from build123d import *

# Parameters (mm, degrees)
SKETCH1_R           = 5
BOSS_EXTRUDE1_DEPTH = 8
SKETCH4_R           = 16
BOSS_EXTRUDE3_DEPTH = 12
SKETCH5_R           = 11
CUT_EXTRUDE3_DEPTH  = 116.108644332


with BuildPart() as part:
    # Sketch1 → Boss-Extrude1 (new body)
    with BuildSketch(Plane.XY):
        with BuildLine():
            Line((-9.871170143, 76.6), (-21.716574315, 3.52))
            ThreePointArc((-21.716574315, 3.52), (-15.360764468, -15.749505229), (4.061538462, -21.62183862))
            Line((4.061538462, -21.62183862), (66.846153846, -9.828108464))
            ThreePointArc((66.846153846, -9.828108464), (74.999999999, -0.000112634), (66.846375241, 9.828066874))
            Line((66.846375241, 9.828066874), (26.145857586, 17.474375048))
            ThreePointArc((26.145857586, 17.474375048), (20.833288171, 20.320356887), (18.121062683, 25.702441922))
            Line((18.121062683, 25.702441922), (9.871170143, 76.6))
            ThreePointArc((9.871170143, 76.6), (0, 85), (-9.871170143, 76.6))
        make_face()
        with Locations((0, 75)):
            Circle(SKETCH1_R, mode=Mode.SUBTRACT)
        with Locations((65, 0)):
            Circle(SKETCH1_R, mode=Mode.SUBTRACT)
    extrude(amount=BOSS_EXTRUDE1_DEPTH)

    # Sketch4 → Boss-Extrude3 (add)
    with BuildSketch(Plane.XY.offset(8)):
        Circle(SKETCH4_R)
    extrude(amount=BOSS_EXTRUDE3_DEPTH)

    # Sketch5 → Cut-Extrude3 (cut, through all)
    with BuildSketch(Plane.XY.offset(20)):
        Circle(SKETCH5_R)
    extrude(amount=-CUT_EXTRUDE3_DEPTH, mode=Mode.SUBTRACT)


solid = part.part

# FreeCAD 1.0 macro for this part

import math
import FreeCAD as App
import Part
import Sketcher
Q = App.Units.Quantity

doc = App.newDocument("Part")
body = doc.addObject("PartDesign::Body", "Body")

# Sketch on XY plane
sketch1 = body.newObject("Sketcher::SketchObject", "Sketch")
sketch1.AttachmentSupport = (doc.getObject("XY_Plane"), [""])
sketch1.MapMode = "FlatFace"
sketch1.addGeometry([
    Part.LineSegment(App.Vector(-9.87117, 76.6, 0), App.Vector(-21.716574, 3.52, 0)),  # 0
    Part.ArcOfCircle(Part.Circle(App.Vector(0, 0, 0), App.Vector(0, 0, 1), 22), math.radians(170.793104), math.radians(280.638709)),  # 1
    Part.LineSegment(App.Vector(4.061538, -21.621839, 0), App.Vector(66.846154, -9.828108, 0)),  # 2
    Part.ArcOfCircle(Part.Circle(App.Vector(65, 0, 0), App.Vector(0, 0, 1), 10), math.radians(-79.361291), math.radians(79.36)),  # 3
    Part.LineSegment(App.Vector(66.846375, 9.828067, 0), App.Vector(26.145858, 17.474375, 0)),  # 4
    Part.ArcOfCircle(Part.Circle(App.Vector(27.992233, 27.302442, 0), App.Vector(0, 0, 1), 10), math.radians(-170.793104), math.radians(-100.64)),  # 5
    Part.LineSegment(App.Vector(18.121063, 25.702442, 0), App.Vector(9.87117, 76.6, 0)),  # 6
    Part.ArcOfCircle(Part.Circle(App.Vector(0, 75, 0), App.Vector(0, 0, 1), 10), math.radians(9.206896), math.radians(170.793104)),  # 7
    Part.Circle(App.Vector(65, 0, 0), App.Vector(0, 0, 1), 5),  # 8
    Part.Circle(App.Vector(0, 75, 0), App.Vector(0, 0, 1), 5),  # 9
], False)
sketch1.addConstraint([
    Sketcher.Constraint("Tangent", 0, 2, 1, 1),
    Sketcher.Constraint("Tangent", 1, 2, 2, 1),
    Sketcher.Constraint("Tangent", 2, 2, 3, 1),
    Sketcher.Constraint("Tangent", 3, 2, 4, 1),
    Sketcher.Constraint("Tangent", 4, 2, 5, 2),
    Sketcher.Constraint("Tangent", 5, 1, 6, 1),
    Sketcher.Constraint("Tangent", 6, 2, 7, 1),
    Sketcher.Constraint("Tangent", 7, 2, 0, 1),
    Sketcher.Constraint("Coincident", 1, 3, -1, 1),
    Sketcher.Constraint("Coincident", 8, 3, 3, 3),
    Sketcher.Constraint("Coincident", 9, 3, 7, 3),
    Sketcher.Constraint("Equal", 3, 5),
    Sketcher.Constraint("Equal", 5, 7),
    Sketcher.Constraint("Equal", 8, 9),
    Sketcher.Constraint("Symmetric", 6, 2, 7, 2, -2),
    Sketcher.Constraint("PointOnObject", 3, 3, -1),
    Sketcher.Constraint("Diameter", 8, 10.0),
    Sketcher.Constraint("Radius", 1, 22.0),
    Sketcher.Constraint("Radius", 3, 10.0),
    Sketcher.Constraint("DistanceX", -1, 1, 3, 3, 65.0),
    Sketcher.Constraint("DistanceY", -1, 1, 7, 3, 75.0),
    Sketcher.Constraint("Angle", 4, Q("169.36 deg")),
])
pad1 = body.newObject("PartDesign::Pad", "Pad")
pad1.Profile = sketch1
pad1.Length = 8

# Sketch on XY plane
sketch2 = body.newObject("Sketcher::SketchObject", "Sketch001")
sketch2.AttachmentSupport = (doc.getObject("XY_Plane"), [""])
sketch2.MapMode = "FlatFace"
sketch2.AttachmentOffset = App.Placement(App.Vector(0, 0, 8), App.Rotation())
sketch2.addGeometry(Part.Circle(App.Vector(0, 0, 0), App.Vector(0, 0, 1), 16), False)
sketch2.addConstraint([
    Sketcher.Constraint("Coincident", 0, 3, -1, 1),
    Sketcher.Constraint("Diameter", 0, 32.0),
])
pad2 = body.newObject("PartDesign::Pad", "Pad001")
pad2.Profile = sketch2
pad2.Length = 12

# Sketch on XY plane
sketch3 = body.newObject("Sketcher::SketchObject", "Sketch002")
sketch3.AttachmentSupport = (doc.getObject("XY_Plane"), [""])
sketch3.MapMode = "FlatFace"
sketch3.AttachmentOffset = App.Placement(App.Vector(0, 0, 20), App.Rotation())
sketch3.addGeometry(Part.Circle(App.Vector(0, 0, 0), App.Vector(0, 0, 1), 11), False)
sketch3.addConstraint([
    Sketcher.Constraint("Coincident", 0, 3, -1, 1),
    Sketcher.Constraint("Diameter", 0, 22.0),
])
pocket1 = body.newObject("PartDesign::Pocket", "Pocket")
pocket1.Profile = sketch3
pocket1.Type = "ThroughAll"

doc.recompute()
